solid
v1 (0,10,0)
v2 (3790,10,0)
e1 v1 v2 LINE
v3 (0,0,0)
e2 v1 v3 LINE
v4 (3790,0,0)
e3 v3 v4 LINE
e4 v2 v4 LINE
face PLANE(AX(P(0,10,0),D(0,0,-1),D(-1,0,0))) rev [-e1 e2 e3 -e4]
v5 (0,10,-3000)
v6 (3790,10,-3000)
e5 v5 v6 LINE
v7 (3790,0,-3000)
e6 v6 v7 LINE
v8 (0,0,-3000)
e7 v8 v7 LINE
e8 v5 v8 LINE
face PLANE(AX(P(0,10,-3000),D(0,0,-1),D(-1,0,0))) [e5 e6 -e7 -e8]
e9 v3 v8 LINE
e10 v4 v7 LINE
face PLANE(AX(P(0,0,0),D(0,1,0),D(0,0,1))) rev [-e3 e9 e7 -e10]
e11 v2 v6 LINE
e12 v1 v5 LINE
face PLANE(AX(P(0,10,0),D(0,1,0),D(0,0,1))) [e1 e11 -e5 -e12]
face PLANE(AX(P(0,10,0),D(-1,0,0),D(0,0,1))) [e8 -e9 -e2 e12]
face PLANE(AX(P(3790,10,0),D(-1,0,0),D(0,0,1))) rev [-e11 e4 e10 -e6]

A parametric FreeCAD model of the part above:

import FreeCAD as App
import Part
import Sketcher

V = App.Vector

doc = App.newDocument("Part")
body = doc.addObject("PartDesign::Body", "Body")

sketch1 = body.newObject("Sketcher::SketchObject", "Sketch")
sketch1.AttachmentSupport = (doc.getObject("XZ_Plane"), [""])
sketch1.MapMode = "FlatFace"
sketch1.addGeometry([
    Part.LineSegment(V(0, 0, 0), V(3790, 0, 0)),
    Part.LineSegment(V(3790, 0, 0), V(3790, -3000, 0)),
    Part.LineSegment(V(3790, -3000, 0), V(0, -3000, 0)),
    Part.LineSegment(V(0, -3000, 0), V(0, 0, 0)),
], False)
sketch1.addConstraint([
    Sketcher.Constraint("Coincident", 0, 2, 1, 1),
    Sketcher.Constraint("Coincident", 1, 2, 2, 1),
    Sketcher.Constraint("Coincident", 2, 2, 3, 1),
    Sketcher.Constraint("Coincident", 3, 2, 0, 1),
    Sketcher.Constraint("Horizontal", 0),
    Sketcher.Constraint("Vertical", 1),
    Sketcher.Constraint("Horizontal", 2),
    Sketcher.Constraint("Vertical", 3),
    Sketcher.Constraint("Coincident", 3, 2, -1, 1),
    Sketcher.Constraint("DistanceX", 0, 1, 0, 2, 3790.0),
    Sketcher.Constraint("DistanceY", 1, 2, 1, 1, 3000.0),
])
pad1 = body.newObject("PartDesign::Pad", "Pad")
pad1.Profile = sketch1
pad1.Length = 10
pad1.Reversed = True

doc.recompute()
